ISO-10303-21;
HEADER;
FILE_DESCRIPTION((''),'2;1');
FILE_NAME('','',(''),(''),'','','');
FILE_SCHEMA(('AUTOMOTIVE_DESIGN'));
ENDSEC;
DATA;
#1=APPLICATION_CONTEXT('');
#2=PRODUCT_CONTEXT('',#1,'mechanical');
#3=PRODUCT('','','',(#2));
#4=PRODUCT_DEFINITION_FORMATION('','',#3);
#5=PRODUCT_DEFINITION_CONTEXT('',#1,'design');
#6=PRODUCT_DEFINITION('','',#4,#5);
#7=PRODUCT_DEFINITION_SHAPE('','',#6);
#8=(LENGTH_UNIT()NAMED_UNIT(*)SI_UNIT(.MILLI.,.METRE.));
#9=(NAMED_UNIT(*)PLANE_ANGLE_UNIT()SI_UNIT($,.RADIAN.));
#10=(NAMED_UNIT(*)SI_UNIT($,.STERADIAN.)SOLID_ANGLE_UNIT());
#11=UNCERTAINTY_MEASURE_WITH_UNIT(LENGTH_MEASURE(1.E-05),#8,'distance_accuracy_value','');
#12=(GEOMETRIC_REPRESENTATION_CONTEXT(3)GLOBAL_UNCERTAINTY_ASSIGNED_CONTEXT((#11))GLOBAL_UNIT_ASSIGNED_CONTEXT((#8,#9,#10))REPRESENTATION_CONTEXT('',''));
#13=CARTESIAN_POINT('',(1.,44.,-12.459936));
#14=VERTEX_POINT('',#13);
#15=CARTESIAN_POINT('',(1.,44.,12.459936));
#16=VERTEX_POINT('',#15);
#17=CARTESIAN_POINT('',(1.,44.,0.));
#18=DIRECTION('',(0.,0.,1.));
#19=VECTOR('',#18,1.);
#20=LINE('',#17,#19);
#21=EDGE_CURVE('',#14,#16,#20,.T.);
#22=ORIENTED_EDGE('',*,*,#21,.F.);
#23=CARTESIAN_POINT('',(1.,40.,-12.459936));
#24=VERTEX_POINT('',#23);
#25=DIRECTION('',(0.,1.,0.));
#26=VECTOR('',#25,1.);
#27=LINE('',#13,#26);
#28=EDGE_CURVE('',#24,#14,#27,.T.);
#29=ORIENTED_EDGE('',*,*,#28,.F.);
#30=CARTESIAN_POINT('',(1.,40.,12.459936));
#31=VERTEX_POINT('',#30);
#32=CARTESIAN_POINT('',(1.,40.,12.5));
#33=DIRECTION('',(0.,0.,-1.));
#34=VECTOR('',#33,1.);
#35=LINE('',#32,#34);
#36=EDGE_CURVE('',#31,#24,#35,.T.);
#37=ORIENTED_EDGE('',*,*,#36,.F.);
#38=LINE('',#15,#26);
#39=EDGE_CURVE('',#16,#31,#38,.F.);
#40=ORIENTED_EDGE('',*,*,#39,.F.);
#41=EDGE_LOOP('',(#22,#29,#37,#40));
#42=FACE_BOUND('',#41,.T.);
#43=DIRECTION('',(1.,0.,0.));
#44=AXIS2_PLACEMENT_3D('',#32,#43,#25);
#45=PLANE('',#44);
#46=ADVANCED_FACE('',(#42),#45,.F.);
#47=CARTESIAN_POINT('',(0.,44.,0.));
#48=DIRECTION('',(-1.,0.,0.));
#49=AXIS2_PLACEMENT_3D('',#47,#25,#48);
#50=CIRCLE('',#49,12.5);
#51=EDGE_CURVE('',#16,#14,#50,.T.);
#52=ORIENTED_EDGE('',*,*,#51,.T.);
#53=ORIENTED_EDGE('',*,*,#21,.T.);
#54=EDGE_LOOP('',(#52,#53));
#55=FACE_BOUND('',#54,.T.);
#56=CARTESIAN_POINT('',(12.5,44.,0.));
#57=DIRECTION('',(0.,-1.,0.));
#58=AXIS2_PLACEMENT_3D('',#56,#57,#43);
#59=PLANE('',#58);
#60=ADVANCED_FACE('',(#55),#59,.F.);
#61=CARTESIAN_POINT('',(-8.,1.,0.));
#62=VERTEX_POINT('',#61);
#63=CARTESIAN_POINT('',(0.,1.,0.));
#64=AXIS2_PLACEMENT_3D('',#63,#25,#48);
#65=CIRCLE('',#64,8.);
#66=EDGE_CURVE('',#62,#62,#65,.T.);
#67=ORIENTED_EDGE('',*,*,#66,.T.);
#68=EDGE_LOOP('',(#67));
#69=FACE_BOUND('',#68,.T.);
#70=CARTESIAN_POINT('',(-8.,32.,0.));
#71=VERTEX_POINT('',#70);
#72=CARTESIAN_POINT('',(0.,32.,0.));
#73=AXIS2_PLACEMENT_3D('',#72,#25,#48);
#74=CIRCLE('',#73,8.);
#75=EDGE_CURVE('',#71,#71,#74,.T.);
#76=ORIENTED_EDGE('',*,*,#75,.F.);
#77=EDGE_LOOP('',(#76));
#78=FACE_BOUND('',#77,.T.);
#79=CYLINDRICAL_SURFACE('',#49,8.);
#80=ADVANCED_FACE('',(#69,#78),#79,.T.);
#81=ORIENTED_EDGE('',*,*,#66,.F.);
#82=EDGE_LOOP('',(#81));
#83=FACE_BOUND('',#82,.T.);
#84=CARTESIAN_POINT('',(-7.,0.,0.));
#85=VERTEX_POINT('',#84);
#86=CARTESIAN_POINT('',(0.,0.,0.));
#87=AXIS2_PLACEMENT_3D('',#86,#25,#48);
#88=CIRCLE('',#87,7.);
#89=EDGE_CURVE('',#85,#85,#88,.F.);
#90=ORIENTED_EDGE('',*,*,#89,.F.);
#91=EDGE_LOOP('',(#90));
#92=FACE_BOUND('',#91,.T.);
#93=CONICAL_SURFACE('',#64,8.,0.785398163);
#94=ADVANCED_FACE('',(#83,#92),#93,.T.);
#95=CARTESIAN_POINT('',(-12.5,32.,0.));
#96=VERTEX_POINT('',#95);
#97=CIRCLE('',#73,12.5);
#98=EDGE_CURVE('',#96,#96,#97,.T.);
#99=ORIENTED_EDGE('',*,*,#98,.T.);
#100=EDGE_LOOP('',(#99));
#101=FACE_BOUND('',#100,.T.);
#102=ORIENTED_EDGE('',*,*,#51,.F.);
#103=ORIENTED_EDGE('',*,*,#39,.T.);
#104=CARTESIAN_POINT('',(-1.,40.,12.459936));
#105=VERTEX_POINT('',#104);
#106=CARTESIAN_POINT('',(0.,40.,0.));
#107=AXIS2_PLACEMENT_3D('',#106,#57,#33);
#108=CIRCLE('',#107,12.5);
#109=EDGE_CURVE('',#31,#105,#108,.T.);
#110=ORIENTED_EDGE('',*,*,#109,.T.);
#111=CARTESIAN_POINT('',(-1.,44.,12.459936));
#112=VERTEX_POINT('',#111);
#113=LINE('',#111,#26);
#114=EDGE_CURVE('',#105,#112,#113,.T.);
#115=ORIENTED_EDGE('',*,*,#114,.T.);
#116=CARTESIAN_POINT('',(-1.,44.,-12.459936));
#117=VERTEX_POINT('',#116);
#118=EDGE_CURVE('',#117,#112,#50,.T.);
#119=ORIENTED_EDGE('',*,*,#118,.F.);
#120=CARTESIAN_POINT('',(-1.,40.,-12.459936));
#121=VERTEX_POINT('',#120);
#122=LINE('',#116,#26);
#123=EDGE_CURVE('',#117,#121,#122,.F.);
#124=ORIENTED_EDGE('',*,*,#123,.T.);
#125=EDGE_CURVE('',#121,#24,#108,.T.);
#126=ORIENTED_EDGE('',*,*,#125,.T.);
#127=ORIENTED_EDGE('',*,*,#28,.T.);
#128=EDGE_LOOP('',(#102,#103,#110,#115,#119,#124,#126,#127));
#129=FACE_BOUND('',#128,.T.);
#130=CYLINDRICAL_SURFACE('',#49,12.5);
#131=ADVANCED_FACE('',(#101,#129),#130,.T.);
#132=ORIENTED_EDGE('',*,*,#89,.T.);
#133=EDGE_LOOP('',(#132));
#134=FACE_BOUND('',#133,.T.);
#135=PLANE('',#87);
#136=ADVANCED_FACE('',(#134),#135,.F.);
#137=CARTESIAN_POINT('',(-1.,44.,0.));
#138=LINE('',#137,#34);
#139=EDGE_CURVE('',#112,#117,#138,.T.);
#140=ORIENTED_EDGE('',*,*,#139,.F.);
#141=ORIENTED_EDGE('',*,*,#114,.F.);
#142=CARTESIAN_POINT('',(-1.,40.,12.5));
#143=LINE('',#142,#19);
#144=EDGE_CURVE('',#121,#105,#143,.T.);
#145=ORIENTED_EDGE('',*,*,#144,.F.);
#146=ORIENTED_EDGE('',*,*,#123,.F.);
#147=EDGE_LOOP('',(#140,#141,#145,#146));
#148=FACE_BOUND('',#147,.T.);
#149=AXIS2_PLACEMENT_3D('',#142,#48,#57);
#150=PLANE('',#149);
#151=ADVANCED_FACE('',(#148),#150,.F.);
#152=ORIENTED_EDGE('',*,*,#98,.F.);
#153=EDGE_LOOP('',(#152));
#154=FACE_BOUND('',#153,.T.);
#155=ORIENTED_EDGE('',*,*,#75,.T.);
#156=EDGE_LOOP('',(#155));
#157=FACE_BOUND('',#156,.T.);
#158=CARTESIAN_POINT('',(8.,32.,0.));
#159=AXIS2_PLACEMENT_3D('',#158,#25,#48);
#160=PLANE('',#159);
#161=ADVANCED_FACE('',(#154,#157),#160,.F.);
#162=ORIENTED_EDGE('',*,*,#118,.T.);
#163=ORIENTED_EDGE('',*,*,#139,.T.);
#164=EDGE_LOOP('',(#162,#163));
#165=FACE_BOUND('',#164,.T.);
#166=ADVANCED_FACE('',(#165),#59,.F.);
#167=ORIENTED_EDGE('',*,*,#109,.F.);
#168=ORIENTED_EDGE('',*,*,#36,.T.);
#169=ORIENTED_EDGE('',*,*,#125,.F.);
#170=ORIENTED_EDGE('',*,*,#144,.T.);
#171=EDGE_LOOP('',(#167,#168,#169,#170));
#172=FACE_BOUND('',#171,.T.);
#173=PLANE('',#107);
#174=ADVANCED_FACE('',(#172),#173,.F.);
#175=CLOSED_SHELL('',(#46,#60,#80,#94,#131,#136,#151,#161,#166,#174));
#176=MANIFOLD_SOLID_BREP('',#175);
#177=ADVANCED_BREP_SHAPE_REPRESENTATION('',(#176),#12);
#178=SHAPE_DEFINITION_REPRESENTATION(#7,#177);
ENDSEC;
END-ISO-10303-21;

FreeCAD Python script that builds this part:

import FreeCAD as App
import Part
import Sketcher
from FreeCAD import Vector


def edges_at(feature, points):
    """Names of the edges that pass closest to the given points."""
    edges = feature.Shape.Edges
    near = lambda p: min(range(len(edges)), key=lambda i: edges[i].distToShape(Part.Vertex(*p))[0])
    return sorted({f"Edge{near(p) + 1}" for p in points})

doc = App.newDocument("Part")
body = doc.addObject("PartDesign::Body", "Body")

# Sketch on XY plane
sketch1 = doc.addObject("Sketcher::SketchObject", "Sketch")
body.addObject(sketch1)
sketch1.AttachmentSupport = (doc.XY_Plane, [""])
sketch1.MapMode = "FlatFace"
sketch1.addGeometry([
    Part.LineSegment(Vector(0, 0, 0), Vector(8, 0, 0)),  # 0
    Part.LineSegment(Vector(8, 0, 0), Vector(8, 32, 0)),  # 1
    Part.LineSegment(Vector(8, 32, 0), Vector(12.5, 32, 0)),  # 2
    Part.LineSegment(Vector(12.5, 32, 0), Vector(12.5, 44, 0)),  # 3
    Part.LineSegment(Vector(12.5, 44, 0), Vector(0, 44, 0)),  # 4
    Part.LineSegment(Vector(0, 44, 0), Vector(0, 0, 0)),  # 5
], False)
sketch1.addConstraint([
    Sketcher.Constraint("Coincident", 0, 2, 1, 1),
    Sketcher.Constraint("Coincident", 1, 2, 2, 1),
    Sketcher.Constraint("Coincident", 2, 2, 3, 1),
    Sketcher.Constraint("Coincident", 3, 2, 4, 1),
    Sketcher.Constraint("Coincident", 4, 2, 5, 1),
    Sketcher.Constraint("Coincident", 5, 2, 0, 1),
    Sketcher.Constraint("Horizontal", 0),
    Sketcher.Constraint("Vertical", 1),
    Sketcher.Constraint("Horizontal", 2),
    Sketcher.Constraint("Vertical", 3),
    Sketcher.Constraint("Horizontal", 4),
    Sketcher.Constraint("Vertical", 5),
    Sketcher.Constraint("Coincident", 5, 2, -1, 1),
    Sketcher.Constraint("DistanceX", 0, 1, 0, 2, 8.0),
    Sketcher.Constraint("DistanceY", 1, 1, 1, 2, 32.0),
    Sketcher.Constraint("DistanceY", 3, 1, 3, 2, 12.0),
    Sketcher.Constraint("DistanceX", 2, 1, 2, 2, 4.5),
])
revolution = doc.addObject("PartDesign::Revolution", "Revolution")
body.addObject(revolution)
revolution.Profile = sketch1
revolution.ReferenceAxis = (sketch1, ["V_Axis"])
revolution.Angle = 360
doc.recompute()

chamfer = doc.addObject("PartDesign::Chamfer", "Chamfer")
body.addObject(chamfer)
chamfer.Base = (revolution, edges_at(revolution, [(8, 0, 0)]))
chamfer.Size = 1

# Sketch on XZ plane
sketch2 = doc.addObject("Sketcher::SketchObject", "Sketch001")
body.addObject(sketch2)
sketch2.AttachmentSupport = (doc.XZ_Plane, [""])
sketch2.MapMode = "FlatFace"
sketch2.AttachmentOffset = App.Placement(Vector(0, 0, -44), App.Rotation())
sketch2.addGeometry([
    Part.LineSegment(Vector(-1, -12.5, 0), Vector(-1, 12.5, 0)),
    Part.LineSegment(Vector(-1, 12.5, 0), Vector(1, 12.5, 0)),
    Part.LineSegment(Vector(1, 12.5, 0), Vector(1, -12.5, 0)),
    Part.LineSegment(Vector(1, -12.5, 0), Vector(-1, -12.5, 0)),
], False)
sketch2.addConstraint([
    Sketcher.Constraint("Coincident", 0, 2, 1, 1),
    Sketcher.Constraint("Coincident", 1, 2, 2, 1),
    Sketcher.Constraint("Coincident", 2, 2, 3, 1),
    Sketcher.Constraint("Coincident", 3, 2, 0, 1),
    Sketcher.Constraint("Vertical", 0),
    Sketcher.Constraint("Horizontal", 1),
    Sketcher.Constraint("Vertical", 2),
    Sketcher.Constraint("Horizontal", 3),
    Sketcher.Constraint("Symmetric", 0, 2, 2, 2, -1, 1),
    Sketcher.Constraint("DistanceX", 1, 1, 1, 2, 2.0),
    Sketcher.Constraint("DistanceY", 0, 1, 0, 2, 25.0),
])
pocket1 = doc.addObject("PartDesign::Pocket", "Pocket")
body.addObject(pocket1)
pocket1.Profile = sketch2
pocket1.Length = 4
pocket1.Reversed = True

doc.recompute()
